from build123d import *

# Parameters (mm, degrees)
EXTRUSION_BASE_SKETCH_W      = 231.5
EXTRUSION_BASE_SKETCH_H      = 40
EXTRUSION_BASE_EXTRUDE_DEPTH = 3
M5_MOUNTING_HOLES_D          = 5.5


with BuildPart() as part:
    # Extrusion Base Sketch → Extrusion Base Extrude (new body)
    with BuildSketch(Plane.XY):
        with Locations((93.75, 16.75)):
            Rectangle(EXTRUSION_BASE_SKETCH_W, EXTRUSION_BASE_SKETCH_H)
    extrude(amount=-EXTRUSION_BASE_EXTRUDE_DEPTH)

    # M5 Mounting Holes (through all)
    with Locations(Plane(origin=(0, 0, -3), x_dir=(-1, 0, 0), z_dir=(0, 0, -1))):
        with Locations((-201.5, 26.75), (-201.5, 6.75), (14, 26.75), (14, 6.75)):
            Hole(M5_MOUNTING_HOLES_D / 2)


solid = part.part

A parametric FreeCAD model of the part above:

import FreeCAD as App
import Part
import Sketcher
from FreeCAD import Vector
Q = App.Units.Quantity

doc = App.newDocument("Part")
body = doc.addObject("PartDesign::Body", "Body")

# Sketch on XY plane
sketch1 = body.newObject("Sketcher::SketchObject", "Sketch")
sketch1.AttachmentSupport = (doc.getObject("XY_Plane"), [""])
sketch1.MapMode = "FlatFace"
sketch1.addGeometry(Part.LineSegment(Vector(-22, 37, 0), Vector(-22, -3, 0)), False)
sketch1.addGeometry(Part.LineSegment(Vector(-22, -3, 0), Vector(210, -3, 0)), False)
sketch1.addGeometry(Part.LineSegment(Vector(210, -3, 0), Vector(210, 37, 0)), False)
sketch1.addGeometry(Part.LineSegment(Vector(210, 37, 0), Vector(-22, 37, 0)), False)
sketch1.addConstraint(Sketcher.Constraint("Coincident", 0, 2, 1, 1))
sketch1.addConstraint(Sketcher.Constraint("Coincident", 1, 2, 2, 1))
sketch1.addConstraint(Sketcher.Constraint("Coincident", 2, 2, 3, 1))
sketch1.addConstraint(Sketcher.Constraint("Coincident", 3, 2, 0, 1))
sketch1.addConstraint(Sketcher.Constraint("Vertical", 0))
sketch1.addConstraint(Sketcher.Constraint("Horizontal", 1))
sketch1.addConstraint(Sketcher.Constraint("Vertical", 2))
sketch1.addConstraint(Sketcher.Constraint("Horizontal", 3))
sketch1.addConstraint(Sketcher.Constraint("DistanceY", 0, 2, 0, 1, Q("40 mm")))
sketch1.addConstraint(Sketcher.Constraint("DistanceX", 1, 1, 1, 2, Q("231.5 mm")))
sketch1.addConstraint(Sketcher.Constraint("DistanceX", 0, 2, -1, 1, Q("22 mm")))
sketch1.addConstraint(Sketcher.Constraint("DistanceY", 0, 2, -1, 1, Q("3.25 mm")))
pad1 = body.newObject("PartDesign::Pad", "Pad")
pad1.Profile = sketch1
pad1.Length = 3
pad1.Reversed = True

# Sketch on XY plane
sketch2 = body.newObject("Sketcher::SketchObject", "Sketch001")
sketch2.AttachmentSupport = (doc.getObject("XY_Plane"), [""])
sketch2.MapMode = "FlatFace"
sketch2.AttachmentOffset = App.Placement(Vector(0, 0, -3), App.Rotation())
sketch2.addGeometry(Part.Circle(Vector(201.5, 26.8, 0), Vector(0, 0, 1), 2.8), False)
sketch2.addGeometry(Part.Circle(Vector(201.5, 6.8, 0), Vector(0, 0, 1), 2.8), False)
sketch2.addGeometry(Part.Circle(Vector(-14, 26.8, 0), Vector(0, 0, 1), 2.8), False)
sketch2.addGeometry(Part.Circle(Vector(-14, 6.8, 0), Vector(0, 0, 1), 2.8), False)
sketch2.addConstraint(Sketcher.Constraint("Equal", 0, 1))
sketch2.addConstraint(Sketcher.Constraint("Equal", 1, 2))
sketch2.addConstraint(Sketcher.Constraint("Equal", 2, 3))
sketch2.addConstraint(Sketcher.Constraint("Horizontal", 0, 3, 2, 3))
sketch2.addConstraint(Sketcher.Constraint("Horizontal", 1, 3, 3, 3))
sketch2.addConstraint(Sketcher.Constraint("Vertical", 0, 3, 1, 3))
sketch2.addConstraint(Sketcher.Constraint("Vertical", 2, 3, 3, 3))
sketch2.addConstraint(Sketcher.Constraint("Diameter", 0, Q("5.5 mm")))
sketch2.addConstraint(Sketcher.Constraint("DistanceX", 2, 3, -1, 1, Q("14 mm")))
sketch2.addConstraint(Sketcher.Constraint("DistanceY", 1, 3, 0, 3, Q("20 mm")))
sketch2.addConstraint(Sketcher.Constraint("DistanceX", -1, 1, 0, 3, Q("201.5 mm")))
sketch2.addConstraint(Sketcher.Constraint("DistanceY", -1, 1, 0, 3, Q("26.75 mm")))
doc.recompute()
hole = body.newObject("PartDesign::Hole", "Hole")
hole.Profile = sketch2
hole.ThreadType = "None"
hole.Diameter = 5.5
hole.DepthType = "ThroughAll"
hole.Reversed = True

doc.recompute()
